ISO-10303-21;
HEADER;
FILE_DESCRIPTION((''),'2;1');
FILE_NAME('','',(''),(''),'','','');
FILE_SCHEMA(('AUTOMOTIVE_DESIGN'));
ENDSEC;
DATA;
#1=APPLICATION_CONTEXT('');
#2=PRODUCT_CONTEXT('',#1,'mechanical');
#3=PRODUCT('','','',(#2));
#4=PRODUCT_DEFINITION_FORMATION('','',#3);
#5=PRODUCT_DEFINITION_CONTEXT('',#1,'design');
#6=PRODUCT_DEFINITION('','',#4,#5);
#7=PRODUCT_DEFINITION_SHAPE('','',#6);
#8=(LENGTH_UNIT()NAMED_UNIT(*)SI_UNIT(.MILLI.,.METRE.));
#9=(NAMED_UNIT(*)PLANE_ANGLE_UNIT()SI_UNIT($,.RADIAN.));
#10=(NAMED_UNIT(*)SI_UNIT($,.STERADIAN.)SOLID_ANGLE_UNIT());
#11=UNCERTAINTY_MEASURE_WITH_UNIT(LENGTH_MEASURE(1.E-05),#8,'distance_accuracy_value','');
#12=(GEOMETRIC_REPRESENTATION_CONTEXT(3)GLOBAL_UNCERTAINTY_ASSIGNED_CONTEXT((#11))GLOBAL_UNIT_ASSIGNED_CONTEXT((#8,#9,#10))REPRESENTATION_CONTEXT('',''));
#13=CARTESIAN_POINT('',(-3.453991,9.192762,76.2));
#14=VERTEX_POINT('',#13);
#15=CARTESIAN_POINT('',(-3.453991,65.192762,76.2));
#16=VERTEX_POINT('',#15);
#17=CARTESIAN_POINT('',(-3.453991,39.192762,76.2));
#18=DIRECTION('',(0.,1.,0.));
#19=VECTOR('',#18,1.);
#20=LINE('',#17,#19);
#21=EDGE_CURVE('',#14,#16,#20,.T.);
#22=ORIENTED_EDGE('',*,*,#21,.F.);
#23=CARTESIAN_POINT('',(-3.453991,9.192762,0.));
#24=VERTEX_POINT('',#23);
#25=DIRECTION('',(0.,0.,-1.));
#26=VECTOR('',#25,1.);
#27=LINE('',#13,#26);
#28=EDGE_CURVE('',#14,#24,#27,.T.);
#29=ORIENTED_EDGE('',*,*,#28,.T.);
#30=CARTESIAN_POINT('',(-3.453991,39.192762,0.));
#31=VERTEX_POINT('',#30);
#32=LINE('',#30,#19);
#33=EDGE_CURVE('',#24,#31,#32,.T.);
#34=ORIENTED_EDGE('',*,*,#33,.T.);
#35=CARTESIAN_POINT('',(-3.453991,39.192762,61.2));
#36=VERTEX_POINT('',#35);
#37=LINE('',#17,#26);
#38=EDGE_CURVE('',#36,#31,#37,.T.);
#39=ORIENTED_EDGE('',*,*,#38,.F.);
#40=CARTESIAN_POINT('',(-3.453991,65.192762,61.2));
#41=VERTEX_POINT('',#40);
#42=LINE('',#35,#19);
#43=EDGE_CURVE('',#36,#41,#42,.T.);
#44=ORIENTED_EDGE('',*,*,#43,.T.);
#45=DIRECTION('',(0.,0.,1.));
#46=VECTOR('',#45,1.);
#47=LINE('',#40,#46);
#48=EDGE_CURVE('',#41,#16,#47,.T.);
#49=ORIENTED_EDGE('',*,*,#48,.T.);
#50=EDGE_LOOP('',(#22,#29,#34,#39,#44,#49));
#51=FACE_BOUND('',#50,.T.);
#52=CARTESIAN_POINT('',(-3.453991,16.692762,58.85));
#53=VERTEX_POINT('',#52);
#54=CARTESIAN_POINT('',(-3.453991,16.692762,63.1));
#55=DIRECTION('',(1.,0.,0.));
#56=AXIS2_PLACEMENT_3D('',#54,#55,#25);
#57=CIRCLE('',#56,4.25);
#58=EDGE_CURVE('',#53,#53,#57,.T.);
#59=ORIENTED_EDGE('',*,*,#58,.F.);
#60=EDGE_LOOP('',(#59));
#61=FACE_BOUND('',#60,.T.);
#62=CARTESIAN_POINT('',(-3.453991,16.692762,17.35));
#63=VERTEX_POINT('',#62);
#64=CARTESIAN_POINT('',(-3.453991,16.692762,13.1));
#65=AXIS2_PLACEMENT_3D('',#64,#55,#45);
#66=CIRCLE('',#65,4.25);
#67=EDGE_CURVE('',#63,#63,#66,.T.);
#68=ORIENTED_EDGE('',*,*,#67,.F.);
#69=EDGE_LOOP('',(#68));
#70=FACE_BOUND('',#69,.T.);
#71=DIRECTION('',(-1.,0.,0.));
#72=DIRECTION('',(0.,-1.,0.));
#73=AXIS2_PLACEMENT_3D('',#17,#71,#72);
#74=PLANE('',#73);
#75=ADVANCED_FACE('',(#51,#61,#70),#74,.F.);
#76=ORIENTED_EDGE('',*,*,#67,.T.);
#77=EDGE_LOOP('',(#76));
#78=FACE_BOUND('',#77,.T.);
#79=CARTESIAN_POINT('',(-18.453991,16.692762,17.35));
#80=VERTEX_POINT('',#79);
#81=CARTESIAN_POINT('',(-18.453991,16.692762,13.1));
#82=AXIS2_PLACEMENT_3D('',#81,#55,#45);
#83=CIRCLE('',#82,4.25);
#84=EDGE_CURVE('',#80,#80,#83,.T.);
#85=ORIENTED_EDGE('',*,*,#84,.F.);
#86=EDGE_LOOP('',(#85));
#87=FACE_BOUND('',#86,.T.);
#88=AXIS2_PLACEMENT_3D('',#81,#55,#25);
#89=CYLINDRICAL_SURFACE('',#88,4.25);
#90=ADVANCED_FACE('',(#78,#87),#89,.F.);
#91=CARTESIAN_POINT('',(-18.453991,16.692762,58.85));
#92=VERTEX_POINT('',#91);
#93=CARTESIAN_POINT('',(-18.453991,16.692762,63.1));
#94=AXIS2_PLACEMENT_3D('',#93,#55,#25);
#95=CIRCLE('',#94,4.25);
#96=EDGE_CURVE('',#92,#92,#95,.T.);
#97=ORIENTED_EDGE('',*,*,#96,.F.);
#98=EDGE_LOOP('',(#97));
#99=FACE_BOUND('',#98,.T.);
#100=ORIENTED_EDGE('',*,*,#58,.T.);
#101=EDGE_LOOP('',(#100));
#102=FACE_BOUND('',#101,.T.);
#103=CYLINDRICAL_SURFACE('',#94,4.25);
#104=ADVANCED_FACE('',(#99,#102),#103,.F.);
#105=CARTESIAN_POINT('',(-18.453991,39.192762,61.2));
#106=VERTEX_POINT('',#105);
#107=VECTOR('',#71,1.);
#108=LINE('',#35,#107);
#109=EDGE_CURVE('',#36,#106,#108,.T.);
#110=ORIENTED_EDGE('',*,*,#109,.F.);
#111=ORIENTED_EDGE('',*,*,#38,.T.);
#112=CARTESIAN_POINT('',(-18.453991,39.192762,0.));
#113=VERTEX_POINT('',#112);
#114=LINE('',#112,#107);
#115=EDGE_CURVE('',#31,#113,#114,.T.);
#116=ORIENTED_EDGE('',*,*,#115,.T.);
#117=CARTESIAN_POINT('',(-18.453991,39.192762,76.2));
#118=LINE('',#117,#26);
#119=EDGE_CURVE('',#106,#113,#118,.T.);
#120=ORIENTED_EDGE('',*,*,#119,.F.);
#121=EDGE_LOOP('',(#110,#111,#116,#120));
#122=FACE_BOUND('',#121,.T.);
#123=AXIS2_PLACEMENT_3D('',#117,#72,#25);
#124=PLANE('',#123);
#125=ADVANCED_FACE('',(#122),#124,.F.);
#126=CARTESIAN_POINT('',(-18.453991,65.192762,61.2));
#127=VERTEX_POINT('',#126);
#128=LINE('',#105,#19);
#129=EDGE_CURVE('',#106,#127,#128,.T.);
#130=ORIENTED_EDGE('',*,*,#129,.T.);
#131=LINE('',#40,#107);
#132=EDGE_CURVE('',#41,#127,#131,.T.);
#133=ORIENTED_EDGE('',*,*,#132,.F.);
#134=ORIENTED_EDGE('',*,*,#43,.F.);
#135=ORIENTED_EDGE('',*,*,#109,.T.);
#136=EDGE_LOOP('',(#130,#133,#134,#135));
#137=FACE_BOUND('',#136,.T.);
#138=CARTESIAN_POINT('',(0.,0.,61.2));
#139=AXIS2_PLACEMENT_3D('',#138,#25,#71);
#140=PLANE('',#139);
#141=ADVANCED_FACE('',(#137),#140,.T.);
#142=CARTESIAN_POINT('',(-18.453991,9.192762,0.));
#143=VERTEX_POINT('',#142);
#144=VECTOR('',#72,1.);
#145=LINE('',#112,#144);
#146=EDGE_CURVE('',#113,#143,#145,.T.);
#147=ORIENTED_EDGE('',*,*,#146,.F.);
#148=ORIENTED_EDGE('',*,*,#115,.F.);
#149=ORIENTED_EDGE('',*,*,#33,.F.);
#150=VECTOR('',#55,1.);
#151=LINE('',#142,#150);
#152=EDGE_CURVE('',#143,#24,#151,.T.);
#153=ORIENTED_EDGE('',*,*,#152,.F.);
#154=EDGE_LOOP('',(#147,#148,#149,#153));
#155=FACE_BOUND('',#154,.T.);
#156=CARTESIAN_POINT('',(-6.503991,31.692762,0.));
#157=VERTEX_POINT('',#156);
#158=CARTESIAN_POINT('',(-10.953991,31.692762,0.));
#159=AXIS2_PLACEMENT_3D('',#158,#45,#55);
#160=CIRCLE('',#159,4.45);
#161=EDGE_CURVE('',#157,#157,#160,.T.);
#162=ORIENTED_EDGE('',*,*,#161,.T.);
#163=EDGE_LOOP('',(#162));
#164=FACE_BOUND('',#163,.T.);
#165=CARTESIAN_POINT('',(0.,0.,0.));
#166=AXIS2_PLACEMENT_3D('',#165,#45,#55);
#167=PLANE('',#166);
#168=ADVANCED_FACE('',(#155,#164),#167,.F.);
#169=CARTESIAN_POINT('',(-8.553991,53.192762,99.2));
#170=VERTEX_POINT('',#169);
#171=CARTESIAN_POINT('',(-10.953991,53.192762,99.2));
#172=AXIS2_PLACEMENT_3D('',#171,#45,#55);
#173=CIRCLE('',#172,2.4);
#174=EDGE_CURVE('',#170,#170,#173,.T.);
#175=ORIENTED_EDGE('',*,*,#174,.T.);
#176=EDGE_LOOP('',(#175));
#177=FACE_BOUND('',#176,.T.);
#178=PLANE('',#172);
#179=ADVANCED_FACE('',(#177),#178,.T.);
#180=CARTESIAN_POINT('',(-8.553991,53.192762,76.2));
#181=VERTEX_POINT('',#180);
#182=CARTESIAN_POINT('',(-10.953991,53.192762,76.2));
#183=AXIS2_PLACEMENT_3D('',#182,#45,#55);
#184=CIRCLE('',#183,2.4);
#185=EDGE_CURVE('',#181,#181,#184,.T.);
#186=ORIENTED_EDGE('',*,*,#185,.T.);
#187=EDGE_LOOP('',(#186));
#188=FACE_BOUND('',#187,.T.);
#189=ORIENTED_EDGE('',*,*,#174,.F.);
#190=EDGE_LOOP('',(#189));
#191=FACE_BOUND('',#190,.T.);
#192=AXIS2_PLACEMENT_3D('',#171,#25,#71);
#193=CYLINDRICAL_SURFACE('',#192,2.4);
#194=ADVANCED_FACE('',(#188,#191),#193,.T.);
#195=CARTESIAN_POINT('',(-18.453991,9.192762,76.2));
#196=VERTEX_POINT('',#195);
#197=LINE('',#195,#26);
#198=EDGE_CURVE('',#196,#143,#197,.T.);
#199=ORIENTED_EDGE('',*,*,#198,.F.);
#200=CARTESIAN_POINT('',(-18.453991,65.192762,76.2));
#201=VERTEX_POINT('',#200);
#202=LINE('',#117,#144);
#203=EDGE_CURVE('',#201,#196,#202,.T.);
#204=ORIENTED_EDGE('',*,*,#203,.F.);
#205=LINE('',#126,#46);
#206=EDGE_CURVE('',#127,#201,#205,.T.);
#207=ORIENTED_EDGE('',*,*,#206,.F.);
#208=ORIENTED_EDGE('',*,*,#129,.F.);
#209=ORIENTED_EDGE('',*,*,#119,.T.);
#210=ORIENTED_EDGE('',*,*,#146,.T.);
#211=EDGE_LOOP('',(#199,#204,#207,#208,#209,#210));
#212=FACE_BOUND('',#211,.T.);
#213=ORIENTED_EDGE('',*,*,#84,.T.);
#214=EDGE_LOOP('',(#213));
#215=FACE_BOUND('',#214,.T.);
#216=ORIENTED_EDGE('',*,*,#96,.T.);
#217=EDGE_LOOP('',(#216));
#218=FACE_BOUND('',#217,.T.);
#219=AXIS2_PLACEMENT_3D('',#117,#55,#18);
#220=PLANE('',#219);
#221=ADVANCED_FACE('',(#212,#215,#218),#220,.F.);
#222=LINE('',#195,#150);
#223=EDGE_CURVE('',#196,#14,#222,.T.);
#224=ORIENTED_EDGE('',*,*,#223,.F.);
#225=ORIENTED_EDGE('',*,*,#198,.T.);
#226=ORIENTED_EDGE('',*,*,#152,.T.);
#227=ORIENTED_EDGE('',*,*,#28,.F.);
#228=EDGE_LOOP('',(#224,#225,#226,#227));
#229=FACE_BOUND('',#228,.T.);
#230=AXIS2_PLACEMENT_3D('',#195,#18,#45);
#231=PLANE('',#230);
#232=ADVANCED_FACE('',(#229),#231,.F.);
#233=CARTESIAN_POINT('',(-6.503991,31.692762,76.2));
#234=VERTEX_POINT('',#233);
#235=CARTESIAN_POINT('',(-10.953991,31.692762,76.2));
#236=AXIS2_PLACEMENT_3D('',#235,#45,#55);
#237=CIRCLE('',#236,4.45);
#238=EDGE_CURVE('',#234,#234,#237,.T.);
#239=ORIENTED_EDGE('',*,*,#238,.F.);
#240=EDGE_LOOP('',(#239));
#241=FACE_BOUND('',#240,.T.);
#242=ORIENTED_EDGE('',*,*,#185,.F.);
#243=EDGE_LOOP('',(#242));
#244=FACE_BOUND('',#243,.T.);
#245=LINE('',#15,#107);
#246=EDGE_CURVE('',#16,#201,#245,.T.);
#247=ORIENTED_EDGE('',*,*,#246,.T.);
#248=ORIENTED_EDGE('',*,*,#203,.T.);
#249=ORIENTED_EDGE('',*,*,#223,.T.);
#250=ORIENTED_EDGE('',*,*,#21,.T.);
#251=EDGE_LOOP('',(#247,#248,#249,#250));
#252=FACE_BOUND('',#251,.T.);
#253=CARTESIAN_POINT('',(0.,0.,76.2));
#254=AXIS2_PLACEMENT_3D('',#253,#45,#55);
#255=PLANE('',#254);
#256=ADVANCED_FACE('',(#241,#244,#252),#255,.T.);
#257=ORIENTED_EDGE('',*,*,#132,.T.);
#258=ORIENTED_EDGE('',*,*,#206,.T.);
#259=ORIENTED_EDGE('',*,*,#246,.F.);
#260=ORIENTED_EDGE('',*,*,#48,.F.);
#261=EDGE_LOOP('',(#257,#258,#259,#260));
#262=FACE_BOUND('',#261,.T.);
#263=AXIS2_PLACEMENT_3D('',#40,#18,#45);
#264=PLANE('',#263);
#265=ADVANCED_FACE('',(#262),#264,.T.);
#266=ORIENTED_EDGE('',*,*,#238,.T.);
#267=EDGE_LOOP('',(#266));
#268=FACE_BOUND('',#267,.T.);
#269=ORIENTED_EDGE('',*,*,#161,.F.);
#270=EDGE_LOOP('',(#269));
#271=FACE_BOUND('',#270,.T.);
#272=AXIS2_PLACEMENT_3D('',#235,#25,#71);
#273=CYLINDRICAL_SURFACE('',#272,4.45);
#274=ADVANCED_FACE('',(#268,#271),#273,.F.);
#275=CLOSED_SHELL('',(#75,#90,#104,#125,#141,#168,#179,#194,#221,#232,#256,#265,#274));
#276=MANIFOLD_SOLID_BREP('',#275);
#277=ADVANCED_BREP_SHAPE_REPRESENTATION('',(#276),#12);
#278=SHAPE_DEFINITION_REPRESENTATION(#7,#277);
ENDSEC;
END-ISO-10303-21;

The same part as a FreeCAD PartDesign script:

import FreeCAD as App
import Part
import Sketcher
from FreeCAD import Vector
Q = App.Units.Quantity

doc = App.newDocument("Part")
params = doc.addObject("Spreadsheet::Sheet", "Params")
for row, (alias, value) in enumerate([
    ("sketch1_diameter", "8.9 mm"),
    ("sketch1_width", "15 mm"),
    ("sketch1_height", "30 mm"),
    ("pad1_length", "76.2 mm"),
    ("sketch2_diameter", "8.5 mm"),
    ("sketch3_width", "15 mm"),
    ("sketch3_height", "26 mm"),
    ("pad2_length", "15 mm"),
    ("sketch4_diameter", "4.8 mm"),
    ("pad3_length", "23 mm"),
], start=1):
    params.set(f"A{row}", alias)
    params.set(f"B{row}", "=" + value)
    params.setAlias(f"B{row}", alias)

body = doc.addObject("PartDesign::Body", "Body")

sketch1 = body.newObject("Sketcher::SketchObject", "Sketch")
sketch1.AttachmentSupport = (doc.getObject("XY_Plane"), [""])
sketch1.MapMode = "FlatFace"
sketch1.addGeometry(Part.LineSegment(Vector(-18.5, 39.2, 0), Vector(-18.5, 9.2, 0)), False)
sketch1.addGeometry(Part.LineSegment(Vector(-18.5, 9.2, 0), Vector(-3.5, 9.2, 0)), False)
sketch1.addGeometry(Part.LineSegment(Vector(-3.5, 9.2, 0), Vector(-3.5, 39.2, 0)), False)
sketch1.addGeometry(Part.LineSegment(Vector(-3.5, 39.2, 0), Vector(-18.5, 39.2, 0)), False)
sketch1.addGeometry(Part.Circle(Vector(-11, 31.7, 0), Vector(0, 0, 1), 4.5), False)
sketch1.addConstraint(Sketcher.Constraint("Coincident", 0, 2, 1, 1))
sketch1.addConstraint(Sketcher.Constraint("Coincident", 1, 2, 2, 1))
sketch1.addConstraint(Sketcher.Constraint("Coincident", 2, 2, 3, 1))
sketch1.addConstraint(Sketcher.Constraint("Coincident", 3, 2, 0, 1))
sketch1.addConstraint(Sketcher.Constraint("Vertical", 0))
sketch1.addConstraint(Sketcher.Constraint("Horizontal", 1))
sketch1.addConstraint(Sketcher.Constraint("Vertical", 2))
sketch1.addConstraint(Sketcher.Constraint("Horizontal", 3))
sketch1.addConstraint(Sketcher.Constraint("Diameter", 4, Q("8.9 mm")))
sketch1.addConstraint(Sketcher.Constraint("DistanceX", 1, 1, 1, 2, Q("15 mm")))
sketch1.addConstraint(Sketcher.Constraint("DistanceY", 0, 2, 0, 1, Q("30 mm")))
sketch1.addConstraint(Sketcher.Constraint("DistanceX", 0, 2, 4, 3, Q("7.5 mm")))
sketch1.addConstraint(Sketcher.Constraint("DistanceY", 0, 2, 4, 3, Q("22.5 mm")))
sketch1.addConstraint(Sketcher.Constraint("DistanceX", 4, 3, -1, 1, Q("10.953991 mm")))
sketch1.addConstraint(Sketcher.Constraint("DistanceY", -1, 1, 4, 3, Q("31.692762 mm")))
sketch1.setExpression("Constraints[8]", "Params.sketch1_diameter")
sketch1.setExpression("Constraints[9]", "Params.sketch1_width")
sketch1.setExpression("Constraints[10]", "Params.sketch1_height")
pad1 = body.newObject("PartDesign::Pad", "Pad")
pad1.Profile = sketch1
pad1.setExpression("Length", "Params.pad1_length")

sketch2 = body.newObject("Sketcher::SketchObject", "Sketch001")
sketch2.AttachmentSupport = (doc.getObject("YZ_Plane"), [""])
sketch2.MapMode = "FlatFace"
sketch2.AttachmentOffset = App.Placement(Vector(0, 0, -3.453991), App.Rotation())
sketch2.addGeometry(Part.Circle(Vector(16.7, 63.1, 0), Vector(0, 0, 1), 4.2), False)
sketch2.addGeometry(Part.Circle(Vector(16.7, 13.1, 0), Vector(0, 0, 1), 4.2), False)
sketch2.addConstraint(Sketcher.Constraint("Equal", 0, 1))
sketch2.addConstraint(Sketcher.Constraint("Vertical", 0, 3, 1, 3))
sketch2.addConstraint(Sketcher.Constraint("Diameter", 0, Q("8.5 mm")))
sketch2.addConstraint(Sketcher.Constraint("DistanceY", 1, 3, 0, 3, Q("50 mm")))
sketch2.addConstraint(Sketcher.Constraint("DistanceY", -1, 1, 0, 3, Q("63.1 mm")))
sketch2.addConstraint(Sketcher.Constraint("DistanceX", -1, 1, 0, 3, Q("16.692762 mm")))
sketch2.setExpression("Constraints[2]", "Params.sketch2_diameter")
pocket1 = body.newObject("PartDesign::Pocket", "Pocket")
pocket1.Profile = sketch2
pocket1.Type = "ThroughAll"

sketch3 = body.newObject("Sketcher::SketchObject", "Sketch002")
sketch3.AttachmentSupport = (doc.getObject("XY_Plane"), [""])
sketch3.MapMode = "FlatFace"
sketch3.AttachmentOffset = App.Placement(Vector(0, 0, 76.2), App.Rotation())
sketch3.addGeometry(Part.LineSegment(Vector(-18, 65, 0), Vector(-18, 39, 0)), False)
sketch3.addGeometry(Part.LineSegment(Vector(-18, 39, 0), Vector(-3, 39, 0)), False)
sketch3.addGeometry(Part.LineSegment(Vector(-3, 39, 0), Vector(-3, 65, 0)), False)
sketch3.addGeometry(Part.LineSegment(Vector(-3, 65, 0), Vector(-18, 65, 0)), False)
sketch3.addConstraint(Sketcher.Constraint("Coincident", 0, 2, 1, 1))
sketch3.addConstraint(Sketcher.Constraint("Coincident", 1, 2, 2, 1))
sketch3.addConstraint(Sketcher.Constraint("Coincident", 2, 2, 3, 1))
sketch3.addConstraint(Sketcher.Constraint("Coincident", 3, 2, 0, 1))
sketch3.addConstraint(Sketcher.Constraint("Vertical", 0))
sketch3.addConstraint(Sketcher.Constraint("Horizontal", 1))
sketch3.addConstraint(Sketcher.Constraint("Vertical", 2))
sketch3.addConstraint(Sketcher.Constraint("Horizontal", 3))
sketch3.addConstraint(Sketcher.Constraint("DistanceX", 1, 1, 1, 2, Q("15 mm")))
sketch3.addConstraint(Sketcher.Constraint("DistanceY", 0, 2, 0, 1, Q("26 mm")))
sketch3.addConstraint(Sketcher.Constraint("DistanceX", 0, 2, -1, 1, Q("18.453991 mm")))
sketch3.addConstraint(Sketcher.Constraint("DistanceY", -1, 1, 0, 2, Q("39.192762 mm")))
sketch3.setExpression("Constraints[8]", "Params.sketch3_width")
sketch3.setExpression("Constraints[9]", "Params.sketch3_height")
pad2 = body.newObject("PartDesign::Pad", "Pad001")
pad2.Profile = sketch3
pad2.setExpression("Length", "Params.pad2_length")
pad2.Reversed = True

sketch4 = body.newObject("Sketcher::SketchObject", "Sketch003")
sketch4.AttachmentSupport = (doc.getObject("XY_Plane"), [""])
sketch4.MapMode = "FlatFace"
sketch4.AttachmentOffset = App.Placement(Vector(0, 0, 76.2), App.Rotation())
sketch4.addGeometry(Part.Circle(Vector(-11, 53.2, 0), Vector(0, 0, 1), 2.4), False)
sketch4.addConstraint(Sketcher.Constraint("Diameter", 0, Q("4.8 mm")))
sketch4.addConstraint(Sketcher.Constraint("DistanceX", 0, 3, -1, 1, Q("10.953991 mm")))
sketch4.addConstraint(Sketcher.Constraint("DistanceY", -1, 1, 0, 3, Q("53.192762 mm")))
sketch4.setExpression("Constraints[0]", "Params.sketch4_diameter")
pad3 = body.newObject("PartDesign::Pad", "Pad002")
pad3.Profile = sketch4
pad3.setExpression("Length", "Params.pad3_length")

doc.recompute()
